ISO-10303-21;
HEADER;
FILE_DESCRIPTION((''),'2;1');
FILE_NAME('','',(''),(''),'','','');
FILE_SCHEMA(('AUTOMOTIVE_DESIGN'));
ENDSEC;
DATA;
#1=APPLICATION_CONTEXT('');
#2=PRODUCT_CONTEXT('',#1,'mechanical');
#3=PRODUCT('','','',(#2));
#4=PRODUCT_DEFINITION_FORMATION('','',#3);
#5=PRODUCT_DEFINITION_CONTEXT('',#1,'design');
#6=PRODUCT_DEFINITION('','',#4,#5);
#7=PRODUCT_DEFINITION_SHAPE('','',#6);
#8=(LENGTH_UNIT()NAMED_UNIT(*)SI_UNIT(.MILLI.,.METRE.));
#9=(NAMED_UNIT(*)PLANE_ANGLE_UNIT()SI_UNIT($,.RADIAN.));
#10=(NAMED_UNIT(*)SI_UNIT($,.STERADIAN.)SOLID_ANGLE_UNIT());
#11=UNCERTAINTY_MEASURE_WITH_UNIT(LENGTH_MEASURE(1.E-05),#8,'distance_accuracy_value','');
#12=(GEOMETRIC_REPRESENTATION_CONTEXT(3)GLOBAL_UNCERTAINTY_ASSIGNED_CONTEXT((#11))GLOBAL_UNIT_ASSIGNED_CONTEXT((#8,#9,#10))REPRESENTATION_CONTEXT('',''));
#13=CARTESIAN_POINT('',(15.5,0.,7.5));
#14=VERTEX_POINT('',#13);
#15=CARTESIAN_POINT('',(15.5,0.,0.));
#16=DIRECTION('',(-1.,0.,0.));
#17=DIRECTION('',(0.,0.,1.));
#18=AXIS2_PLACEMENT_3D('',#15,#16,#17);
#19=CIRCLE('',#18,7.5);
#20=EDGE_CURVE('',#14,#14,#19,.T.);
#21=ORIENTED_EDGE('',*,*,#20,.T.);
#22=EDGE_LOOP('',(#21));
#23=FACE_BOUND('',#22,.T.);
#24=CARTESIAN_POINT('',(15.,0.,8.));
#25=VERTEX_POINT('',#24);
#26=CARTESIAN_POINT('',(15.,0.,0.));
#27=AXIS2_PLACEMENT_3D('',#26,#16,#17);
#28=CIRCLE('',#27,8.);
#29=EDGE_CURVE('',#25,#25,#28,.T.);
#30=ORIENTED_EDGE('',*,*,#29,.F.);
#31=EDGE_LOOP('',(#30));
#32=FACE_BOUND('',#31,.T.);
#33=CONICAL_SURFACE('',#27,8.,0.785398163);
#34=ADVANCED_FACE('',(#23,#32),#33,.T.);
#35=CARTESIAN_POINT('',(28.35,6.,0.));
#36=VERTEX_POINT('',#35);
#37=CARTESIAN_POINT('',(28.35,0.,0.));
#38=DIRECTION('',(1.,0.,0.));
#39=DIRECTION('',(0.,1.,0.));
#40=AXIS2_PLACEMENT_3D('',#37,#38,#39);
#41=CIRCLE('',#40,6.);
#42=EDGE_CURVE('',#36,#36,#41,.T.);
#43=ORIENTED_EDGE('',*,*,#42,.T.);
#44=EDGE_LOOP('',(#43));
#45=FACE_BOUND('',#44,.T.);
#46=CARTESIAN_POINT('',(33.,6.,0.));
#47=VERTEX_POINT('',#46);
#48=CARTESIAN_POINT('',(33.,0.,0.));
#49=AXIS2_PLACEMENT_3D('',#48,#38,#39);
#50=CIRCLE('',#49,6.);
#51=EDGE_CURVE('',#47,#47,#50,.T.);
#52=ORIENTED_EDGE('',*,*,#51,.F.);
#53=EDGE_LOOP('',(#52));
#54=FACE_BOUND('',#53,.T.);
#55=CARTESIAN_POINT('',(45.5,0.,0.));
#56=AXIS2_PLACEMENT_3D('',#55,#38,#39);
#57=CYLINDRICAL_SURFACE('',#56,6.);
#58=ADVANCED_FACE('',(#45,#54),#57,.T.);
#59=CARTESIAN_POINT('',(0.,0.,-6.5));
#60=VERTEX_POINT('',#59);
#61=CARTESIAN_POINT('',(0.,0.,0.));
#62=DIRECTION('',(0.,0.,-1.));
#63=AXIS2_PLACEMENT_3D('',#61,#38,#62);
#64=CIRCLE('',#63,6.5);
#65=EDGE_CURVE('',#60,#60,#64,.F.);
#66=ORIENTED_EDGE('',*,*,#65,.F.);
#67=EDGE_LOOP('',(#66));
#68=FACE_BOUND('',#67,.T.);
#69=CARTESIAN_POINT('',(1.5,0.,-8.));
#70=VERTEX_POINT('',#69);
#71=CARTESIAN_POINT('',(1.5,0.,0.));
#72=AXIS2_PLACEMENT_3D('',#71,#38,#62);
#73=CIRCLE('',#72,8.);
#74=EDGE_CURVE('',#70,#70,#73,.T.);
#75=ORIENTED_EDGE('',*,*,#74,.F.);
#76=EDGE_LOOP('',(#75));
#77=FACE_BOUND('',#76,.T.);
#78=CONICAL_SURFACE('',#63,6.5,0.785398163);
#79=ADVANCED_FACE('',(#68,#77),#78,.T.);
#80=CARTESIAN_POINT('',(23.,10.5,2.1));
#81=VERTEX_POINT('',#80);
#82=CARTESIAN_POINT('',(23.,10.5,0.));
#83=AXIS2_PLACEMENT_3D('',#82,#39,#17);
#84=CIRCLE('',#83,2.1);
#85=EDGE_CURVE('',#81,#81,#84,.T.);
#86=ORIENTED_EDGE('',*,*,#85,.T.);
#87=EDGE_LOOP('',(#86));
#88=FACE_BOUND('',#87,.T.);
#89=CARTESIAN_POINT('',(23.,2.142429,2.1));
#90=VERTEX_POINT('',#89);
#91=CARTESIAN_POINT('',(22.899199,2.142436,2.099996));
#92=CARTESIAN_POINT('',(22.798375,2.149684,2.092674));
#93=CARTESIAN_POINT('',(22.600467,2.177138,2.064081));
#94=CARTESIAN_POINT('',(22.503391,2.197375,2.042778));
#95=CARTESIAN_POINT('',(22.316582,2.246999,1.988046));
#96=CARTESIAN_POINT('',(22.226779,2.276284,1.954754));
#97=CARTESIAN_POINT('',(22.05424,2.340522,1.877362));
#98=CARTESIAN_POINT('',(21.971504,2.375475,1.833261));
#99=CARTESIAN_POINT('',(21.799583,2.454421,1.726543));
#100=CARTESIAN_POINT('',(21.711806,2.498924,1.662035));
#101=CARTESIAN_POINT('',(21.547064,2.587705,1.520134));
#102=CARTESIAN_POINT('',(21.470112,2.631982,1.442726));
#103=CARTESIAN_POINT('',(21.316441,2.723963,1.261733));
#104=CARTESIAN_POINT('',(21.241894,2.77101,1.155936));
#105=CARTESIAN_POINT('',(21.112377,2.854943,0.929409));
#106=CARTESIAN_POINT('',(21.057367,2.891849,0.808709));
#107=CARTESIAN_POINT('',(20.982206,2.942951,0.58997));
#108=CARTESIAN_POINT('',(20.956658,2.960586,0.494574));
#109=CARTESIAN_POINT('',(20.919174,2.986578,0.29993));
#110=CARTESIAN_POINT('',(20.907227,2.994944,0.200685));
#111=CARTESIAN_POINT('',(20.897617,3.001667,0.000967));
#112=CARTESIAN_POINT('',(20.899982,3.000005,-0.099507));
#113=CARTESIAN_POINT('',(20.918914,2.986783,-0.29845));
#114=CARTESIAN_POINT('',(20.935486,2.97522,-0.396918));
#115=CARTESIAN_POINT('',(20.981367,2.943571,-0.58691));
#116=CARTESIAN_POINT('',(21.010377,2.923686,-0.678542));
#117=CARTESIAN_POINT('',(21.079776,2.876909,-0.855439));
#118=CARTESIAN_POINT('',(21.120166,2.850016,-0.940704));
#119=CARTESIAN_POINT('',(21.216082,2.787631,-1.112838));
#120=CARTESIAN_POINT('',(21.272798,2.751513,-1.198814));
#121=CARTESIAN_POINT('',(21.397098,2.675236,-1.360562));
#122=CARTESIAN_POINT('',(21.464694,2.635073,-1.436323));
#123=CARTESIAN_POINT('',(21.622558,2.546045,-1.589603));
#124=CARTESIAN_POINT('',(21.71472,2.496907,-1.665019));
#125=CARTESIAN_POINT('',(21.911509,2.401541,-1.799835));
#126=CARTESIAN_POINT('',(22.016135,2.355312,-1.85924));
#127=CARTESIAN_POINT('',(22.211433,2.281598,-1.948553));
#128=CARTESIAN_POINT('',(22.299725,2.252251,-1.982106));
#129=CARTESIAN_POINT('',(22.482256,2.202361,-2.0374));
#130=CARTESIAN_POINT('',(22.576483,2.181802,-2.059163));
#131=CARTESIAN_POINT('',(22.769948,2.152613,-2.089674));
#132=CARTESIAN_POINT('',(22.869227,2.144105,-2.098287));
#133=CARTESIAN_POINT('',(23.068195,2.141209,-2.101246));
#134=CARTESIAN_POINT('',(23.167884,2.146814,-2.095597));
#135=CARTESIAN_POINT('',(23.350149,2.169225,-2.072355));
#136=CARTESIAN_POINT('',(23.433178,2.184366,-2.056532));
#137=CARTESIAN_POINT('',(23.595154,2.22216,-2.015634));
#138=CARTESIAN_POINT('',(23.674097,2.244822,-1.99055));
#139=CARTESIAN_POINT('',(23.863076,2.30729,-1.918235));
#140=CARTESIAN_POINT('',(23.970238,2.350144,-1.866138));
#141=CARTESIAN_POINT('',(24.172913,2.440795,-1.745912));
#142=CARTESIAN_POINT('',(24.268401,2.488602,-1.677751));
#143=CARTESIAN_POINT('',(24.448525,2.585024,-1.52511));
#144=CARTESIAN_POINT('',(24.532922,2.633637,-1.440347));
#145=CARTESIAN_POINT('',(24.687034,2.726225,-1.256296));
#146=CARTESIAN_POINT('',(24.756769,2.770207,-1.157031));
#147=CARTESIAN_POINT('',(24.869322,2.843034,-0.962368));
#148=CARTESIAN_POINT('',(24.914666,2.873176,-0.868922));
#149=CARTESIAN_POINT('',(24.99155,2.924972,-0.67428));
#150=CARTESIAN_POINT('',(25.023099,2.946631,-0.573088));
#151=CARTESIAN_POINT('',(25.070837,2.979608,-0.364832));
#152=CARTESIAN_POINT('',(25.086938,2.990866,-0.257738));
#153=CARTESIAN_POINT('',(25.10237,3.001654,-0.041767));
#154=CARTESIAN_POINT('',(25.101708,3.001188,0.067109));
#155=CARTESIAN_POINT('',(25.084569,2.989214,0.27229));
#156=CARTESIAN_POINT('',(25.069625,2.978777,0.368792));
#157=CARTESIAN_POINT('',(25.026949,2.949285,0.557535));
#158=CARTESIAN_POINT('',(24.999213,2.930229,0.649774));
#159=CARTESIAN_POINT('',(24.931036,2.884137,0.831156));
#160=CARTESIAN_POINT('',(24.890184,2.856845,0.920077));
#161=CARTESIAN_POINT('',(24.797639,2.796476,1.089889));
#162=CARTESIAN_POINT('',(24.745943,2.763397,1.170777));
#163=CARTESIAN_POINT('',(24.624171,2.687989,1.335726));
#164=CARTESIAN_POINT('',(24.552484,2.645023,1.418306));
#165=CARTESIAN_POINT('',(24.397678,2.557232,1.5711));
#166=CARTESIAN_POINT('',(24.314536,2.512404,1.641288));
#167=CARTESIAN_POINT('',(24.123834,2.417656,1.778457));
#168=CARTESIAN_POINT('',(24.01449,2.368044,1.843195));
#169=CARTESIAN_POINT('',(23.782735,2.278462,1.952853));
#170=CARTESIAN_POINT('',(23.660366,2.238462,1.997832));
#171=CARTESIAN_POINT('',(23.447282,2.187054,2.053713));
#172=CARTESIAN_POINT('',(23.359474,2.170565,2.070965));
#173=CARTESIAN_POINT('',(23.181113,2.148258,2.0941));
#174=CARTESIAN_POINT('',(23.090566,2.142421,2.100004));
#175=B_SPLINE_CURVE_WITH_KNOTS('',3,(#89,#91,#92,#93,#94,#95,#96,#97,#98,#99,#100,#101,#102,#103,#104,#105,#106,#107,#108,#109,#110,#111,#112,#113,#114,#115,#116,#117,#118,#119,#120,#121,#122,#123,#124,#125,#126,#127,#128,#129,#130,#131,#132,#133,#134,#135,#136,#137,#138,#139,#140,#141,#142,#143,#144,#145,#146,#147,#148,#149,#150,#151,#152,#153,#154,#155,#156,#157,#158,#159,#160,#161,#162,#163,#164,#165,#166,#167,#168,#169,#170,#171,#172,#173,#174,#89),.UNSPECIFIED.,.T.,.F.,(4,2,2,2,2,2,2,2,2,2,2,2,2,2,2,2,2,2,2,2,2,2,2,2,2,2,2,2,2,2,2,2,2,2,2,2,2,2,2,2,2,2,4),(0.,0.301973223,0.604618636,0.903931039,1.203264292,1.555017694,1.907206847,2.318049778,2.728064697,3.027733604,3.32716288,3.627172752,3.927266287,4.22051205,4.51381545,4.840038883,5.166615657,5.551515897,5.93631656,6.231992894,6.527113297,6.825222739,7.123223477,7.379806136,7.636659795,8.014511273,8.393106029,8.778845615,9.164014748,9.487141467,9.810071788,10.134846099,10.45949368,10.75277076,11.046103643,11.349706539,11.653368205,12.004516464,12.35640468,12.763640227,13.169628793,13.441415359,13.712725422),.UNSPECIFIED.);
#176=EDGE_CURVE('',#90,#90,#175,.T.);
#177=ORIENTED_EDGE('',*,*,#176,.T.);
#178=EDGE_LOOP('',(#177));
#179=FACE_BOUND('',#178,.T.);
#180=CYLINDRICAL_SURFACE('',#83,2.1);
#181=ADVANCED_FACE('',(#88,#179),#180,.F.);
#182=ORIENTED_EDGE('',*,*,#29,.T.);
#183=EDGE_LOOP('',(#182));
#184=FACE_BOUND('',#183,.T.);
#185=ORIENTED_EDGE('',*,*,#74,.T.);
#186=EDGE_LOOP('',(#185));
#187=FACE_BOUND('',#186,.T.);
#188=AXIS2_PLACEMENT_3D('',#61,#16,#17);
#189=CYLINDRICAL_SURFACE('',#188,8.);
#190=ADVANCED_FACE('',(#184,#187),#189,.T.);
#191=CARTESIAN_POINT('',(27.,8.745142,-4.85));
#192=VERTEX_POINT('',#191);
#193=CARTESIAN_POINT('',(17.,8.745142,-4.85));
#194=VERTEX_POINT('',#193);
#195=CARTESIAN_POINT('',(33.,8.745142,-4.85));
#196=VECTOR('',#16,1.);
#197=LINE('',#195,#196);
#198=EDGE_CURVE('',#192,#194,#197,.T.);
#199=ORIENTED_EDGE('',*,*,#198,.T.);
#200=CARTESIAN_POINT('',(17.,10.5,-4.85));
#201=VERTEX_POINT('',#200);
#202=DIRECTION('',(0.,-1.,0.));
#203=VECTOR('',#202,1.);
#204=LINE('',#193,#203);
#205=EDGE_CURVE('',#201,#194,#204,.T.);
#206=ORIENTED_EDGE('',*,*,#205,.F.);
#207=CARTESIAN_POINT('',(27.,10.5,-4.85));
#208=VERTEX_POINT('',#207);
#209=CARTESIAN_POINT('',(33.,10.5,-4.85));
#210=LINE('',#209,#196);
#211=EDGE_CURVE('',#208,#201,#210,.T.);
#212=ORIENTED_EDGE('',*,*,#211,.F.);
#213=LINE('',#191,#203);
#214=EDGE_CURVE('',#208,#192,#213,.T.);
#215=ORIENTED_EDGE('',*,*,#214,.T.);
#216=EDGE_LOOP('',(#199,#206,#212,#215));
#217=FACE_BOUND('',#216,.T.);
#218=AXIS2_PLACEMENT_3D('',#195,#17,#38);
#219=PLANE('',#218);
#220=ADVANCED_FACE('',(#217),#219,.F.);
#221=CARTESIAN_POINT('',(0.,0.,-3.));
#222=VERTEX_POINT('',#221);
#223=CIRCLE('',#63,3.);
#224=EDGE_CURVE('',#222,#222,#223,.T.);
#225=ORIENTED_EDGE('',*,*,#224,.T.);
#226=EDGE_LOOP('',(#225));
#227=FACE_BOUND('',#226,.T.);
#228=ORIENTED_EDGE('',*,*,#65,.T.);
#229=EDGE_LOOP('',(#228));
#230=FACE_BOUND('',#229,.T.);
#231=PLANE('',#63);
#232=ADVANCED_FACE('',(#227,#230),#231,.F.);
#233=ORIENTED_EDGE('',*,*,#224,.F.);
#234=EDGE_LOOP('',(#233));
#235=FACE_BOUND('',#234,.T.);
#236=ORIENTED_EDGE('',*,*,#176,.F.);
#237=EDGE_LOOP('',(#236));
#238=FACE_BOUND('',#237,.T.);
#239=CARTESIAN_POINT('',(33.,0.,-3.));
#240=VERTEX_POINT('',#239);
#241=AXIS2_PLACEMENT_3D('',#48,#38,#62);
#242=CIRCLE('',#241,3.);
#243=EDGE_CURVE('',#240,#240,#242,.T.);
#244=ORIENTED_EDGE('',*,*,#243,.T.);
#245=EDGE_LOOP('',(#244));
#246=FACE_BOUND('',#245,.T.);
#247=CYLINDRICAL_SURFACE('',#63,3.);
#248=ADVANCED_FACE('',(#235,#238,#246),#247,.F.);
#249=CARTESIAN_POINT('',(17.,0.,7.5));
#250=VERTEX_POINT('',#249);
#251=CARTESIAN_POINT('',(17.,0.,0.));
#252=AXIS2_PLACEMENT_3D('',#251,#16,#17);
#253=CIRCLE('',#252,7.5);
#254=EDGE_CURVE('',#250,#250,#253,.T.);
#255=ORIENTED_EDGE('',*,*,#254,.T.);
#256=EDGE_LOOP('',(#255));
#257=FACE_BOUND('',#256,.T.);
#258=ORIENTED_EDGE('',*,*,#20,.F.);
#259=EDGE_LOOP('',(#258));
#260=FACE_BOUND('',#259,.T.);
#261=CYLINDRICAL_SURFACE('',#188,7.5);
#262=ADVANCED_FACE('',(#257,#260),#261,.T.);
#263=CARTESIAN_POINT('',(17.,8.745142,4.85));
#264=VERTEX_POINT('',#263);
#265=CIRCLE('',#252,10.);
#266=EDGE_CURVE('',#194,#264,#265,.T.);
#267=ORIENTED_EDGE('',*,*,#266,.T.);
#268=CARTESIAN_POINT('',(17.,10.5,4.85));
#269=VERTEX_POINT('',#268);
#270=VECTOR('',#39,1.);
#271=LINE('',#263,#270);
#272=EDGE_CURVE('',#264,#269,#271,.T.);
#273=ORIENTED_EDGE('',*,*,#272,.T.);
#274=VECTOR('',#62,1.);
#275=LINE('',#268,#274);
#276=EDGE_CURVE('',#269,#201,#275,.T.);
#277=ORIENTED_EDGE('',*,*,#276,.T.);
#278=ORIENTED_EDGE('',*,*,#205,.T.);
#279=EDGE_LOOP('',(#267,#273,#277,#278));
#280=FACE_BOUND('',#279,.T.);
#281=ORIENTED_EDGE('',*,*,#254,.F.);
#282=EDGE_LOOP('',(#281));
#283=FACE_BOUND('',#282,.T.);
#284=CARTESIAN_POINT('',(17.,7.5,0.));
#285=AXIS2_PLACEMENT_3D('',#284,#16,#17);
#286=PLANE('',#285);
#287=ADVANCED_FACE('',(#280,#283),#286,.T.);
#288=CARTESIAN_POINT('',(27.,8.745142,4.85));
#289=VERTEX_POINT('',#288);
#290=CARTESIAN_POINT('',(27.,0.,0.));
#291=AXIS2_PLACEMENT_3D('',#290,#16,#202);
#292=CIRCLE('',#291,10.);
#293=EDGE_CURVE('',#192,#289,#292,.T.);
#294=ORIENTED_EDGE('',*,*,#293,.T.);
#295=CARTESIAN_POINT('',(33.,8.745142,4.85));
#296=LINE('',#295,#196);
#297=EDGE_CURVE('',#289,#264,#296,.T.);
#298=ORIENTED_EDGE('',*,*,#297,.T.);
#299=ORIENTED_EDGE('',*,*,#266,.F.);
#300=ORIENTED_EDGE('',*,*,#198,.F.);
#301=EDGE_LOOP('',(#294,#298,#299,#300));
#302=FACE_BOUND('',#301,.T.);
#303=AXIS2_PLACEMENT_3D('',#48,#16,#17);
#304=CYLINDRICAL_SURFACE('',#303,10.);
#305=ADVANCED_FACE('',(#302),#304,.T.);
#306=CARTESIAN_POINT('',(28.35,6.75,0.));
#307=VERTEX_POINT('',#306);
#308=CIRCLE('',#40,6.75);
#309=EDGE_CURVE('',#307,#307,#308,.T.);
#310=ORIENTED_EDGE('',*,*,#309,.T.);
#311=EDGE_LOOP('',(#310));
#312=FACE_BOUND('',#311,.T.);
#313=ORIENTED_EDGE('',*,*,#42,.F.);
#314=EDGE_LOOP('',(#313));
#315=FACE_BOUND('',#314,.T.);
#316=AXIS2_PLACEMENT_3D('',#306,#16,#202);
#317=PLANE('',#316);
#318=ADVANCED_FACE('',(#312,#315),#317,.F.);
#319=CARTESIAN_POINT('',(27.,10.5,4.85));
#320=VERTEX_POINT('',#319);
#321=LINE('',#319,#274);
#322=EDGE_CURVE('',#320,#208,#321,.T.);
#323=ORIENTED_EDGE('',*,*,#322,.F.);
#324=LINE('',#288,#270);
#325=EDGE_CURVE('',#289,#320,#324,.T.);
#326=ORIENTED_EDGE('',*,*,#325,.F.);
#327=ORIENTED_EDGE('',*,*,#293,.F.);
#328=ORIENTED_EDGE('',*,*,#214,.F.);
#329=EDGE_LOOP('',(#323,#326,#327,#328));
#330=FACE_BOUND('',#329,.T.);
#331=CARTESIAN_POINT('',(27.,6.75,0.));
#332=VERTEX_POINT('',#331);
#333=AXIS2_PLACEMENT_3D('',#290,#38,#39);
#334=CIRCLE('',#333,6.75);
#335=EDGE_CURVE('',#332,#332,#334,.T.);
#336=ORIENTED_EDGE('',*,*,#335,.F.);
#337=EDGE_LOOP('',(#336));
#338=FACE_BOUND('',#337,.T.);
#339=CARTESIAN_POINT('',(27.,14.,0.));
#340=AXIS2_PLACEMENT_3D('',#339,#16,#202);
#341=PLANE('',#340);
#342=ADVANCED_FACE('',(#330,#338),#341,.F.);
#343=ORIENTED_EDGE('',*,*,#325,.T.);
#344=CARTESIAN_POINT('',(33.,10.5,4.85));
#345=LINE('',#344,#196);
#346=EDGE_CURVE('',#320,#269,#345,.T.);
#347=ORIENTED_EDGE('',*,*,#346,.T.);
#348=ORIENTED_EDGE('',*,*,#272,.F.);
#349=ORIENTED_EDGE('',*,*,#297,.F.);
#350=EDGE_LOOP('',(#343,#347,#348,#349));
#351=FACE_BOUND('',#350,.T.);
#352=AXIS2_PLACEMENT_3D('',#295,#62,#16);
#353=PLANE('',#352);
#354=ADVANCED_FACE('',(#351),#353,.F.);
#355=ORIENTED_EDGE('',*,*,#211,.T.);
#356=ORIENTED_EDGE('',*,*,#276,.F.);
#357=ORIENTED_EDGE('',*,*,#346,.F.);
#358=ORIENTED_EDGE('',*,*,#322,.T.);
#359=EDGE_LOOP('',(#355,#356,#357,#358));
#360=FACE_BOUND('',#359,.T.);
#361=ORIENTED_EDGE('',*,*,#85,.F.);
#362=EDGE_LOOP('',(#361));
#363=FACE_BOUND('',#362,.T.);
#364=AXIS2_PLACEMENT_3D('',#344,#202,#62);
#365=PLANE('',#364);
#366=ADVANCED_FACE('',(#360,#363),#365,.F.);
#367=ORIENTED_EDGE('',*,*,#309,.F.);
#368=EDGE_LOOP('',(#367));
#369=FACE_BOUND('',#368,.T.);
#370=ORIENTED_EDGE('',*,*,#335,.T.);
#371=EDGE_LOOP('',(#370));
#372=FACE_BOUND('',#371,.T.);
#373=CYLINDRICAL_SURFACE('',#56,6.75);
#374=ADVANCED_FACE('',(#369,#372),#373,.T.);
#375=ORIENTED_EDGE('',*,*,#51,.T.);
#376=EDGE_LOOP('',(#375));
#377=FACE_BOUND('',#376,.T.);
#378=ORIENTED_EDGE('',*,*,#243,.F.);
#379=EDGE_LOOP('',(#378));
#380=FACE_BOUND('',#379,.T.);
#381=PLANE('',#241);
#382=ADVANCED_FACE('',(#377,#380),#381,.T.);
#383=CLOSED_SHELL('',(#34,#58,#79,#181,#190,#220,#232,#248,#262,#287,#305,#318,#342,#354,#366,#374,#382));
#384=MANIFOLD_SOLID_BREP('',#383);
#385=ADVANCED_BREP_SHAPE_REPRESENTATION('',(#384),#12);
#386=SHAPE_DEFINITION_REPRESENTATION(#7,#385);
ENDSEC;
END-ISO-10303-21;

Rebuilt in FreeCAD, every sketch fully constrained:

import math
import FreeCAD as App
import Part
import Sketcher

V = App.Vector
Q = App.Units.Quantity


def edges_at(feature, points):
    """Names of the edges that pass closest to the given points."""
    edges = feature.Shape.Edges
    near = lambda p: min(range(len(edges)), key=lambda i: edges[i].distToShape(Part.Vertex(*p))[0])
    return sorted({f"Edge{near(p) + 1}" for p in points})

doc = App.newDocument("Part")
body = doc.addObject("PartDesign::Body", "Body")

sketch1 = body.newObject("Sketcher::SketchObject", "Sketch")
sketch1.AttachmentSupport = (doc.getObject("YZ_Plane"), [""])
sketch1.MapMode = "FlatFace"
sketch1.addGeometry([
    Part.LineSegment(V(10.5, 4.8, 0), V(8.7, 4.8, 0)),
    Part.ArcOfCircle(Part.Circle(V(0, 0, 0), V(0, 0, 1), 10), math.radians(29), math.radians(331)),
    Part.LineSegment(V(8.7, -4.8, 0), V(10.5, -4.8, 0)),
    Part.LineSegment(V(10.5, -4.8, 0), V(10.5, 4.8, 0)),
], False)
sketch1.addConstraint([
    Sketcher.Constraint("Coincident", 0, 2, 1, 1),
    Sketcher.Constraint("Coincident", 1, 2, 2, 1),
    Sketcher.Constraint("Coincident", 2, 2, 3, 1),
    Sketcher.Constraint("Coincident", 3, 2, 0, 1),
    Sketcher.Constraint("Horizontal", 0),
    Sketcher.Constraint("Horizontal", 2),
    Sketcher.Constraint("Vertical", 3),
    Sketcher.Constraint("Coincident", 1, 3, -1, 1),
    Sketcher.Constraint("Vertical", 0, 2, 1, 2),
    Sketcher.Constraint("Radius", 1, Q("10 mm")),
    Sketcher.Constraint("DistanceY", 3, 1, 3, 2, Q("9.7 mm")),
    Sketcher.Constraint("DistanceX", -1, 1, 2, 2, Q("10.5 mm")),
])
pad1 = body.newObject("PartDesign::Pad", "Pad")
pad1.Profile = sketch1
pad1.Length = 33

sketch2 = body.newObject("Sketcher::SketchObject", "Sketch001")
sketch2.AttachmentSupport = (doc.getObject("XY_Plane"), [""])
sketch2.MapMode = "FlatFace"
sketch2.addGeometry([
    Part.LineSegment(V(27, 14, 0), V(27, 6.8, 0)),
    Part.LineSegment(V(27, 6.8, 0), V(28.4, 6.8, 0)),
    Part.LineSegment(V(28.4, 6.8, 0), V(28.4, 6, 0)),
    Part.LineSegment(V(28.4, 6, 0), V(33, 6, 0)),
    Part.LineSegment(V(33, 6, 0), V(33, 14, 0)),
    Part.LineSegment(V(33, 14, 0), V(27, 14, 0)),
], False)
sketch2.addConstraint([
    Sketcher.Constraint("Coincident", 0, 2, 1, 1),
    Sketcher.Constraint("Coincident", 1, 2, 2, 1),
    Sketcher.Constraint("Coincident", 2, 2, 3, 1),
    Sketcher.Constraint("Coincident", 3, 2, 4, 1),
    Sketcher.Constraint("Coincident", 4, 2, 5, 1),
    Sketcher.Constraint("Coincident", 5, 2, 0, 1),
    Sketcher.Constraint("Vertical", 0),
    Sketcher.Constraint("Horizontal", 1),
    Sketcher.Constraint("Vertical", 2),
    Sketcher.Constraint("Horizontal", 3),
    Sketcher.Constraint("Vertical", 4),
    Sketcher.Constraint("Horizontal", 5),
    Sketcher.Constraint("DistanceX", 5, 2, 5, 1, Q("6 mm")),
    Sketcher.Constraint("DistanceY", 4, 1, 4, 2, Q("8 mm")),
    Sketcher.Constraint("DistanceX", -1, 1, 0, 2, Q("27 mm")),
    Sketcher.Constraint("DistanceY", -1, 1, 2, 2, Q("6 mm")),
    Sketcher.Constraint("DistanceX", 1, 1, 1, 2, Q("1.35 mm")),
    Sketcher.Constraint("DistanceY", 0, 2, 0, 1, Q("7.25 mm")),
])
groove = body.newObject("PartDesign::Groove", "Groove")
groove.Profile = sketch2
groove.ReferenceAxis = (sketch2, ["H_Axis"])
groove.Angle = 360

sketch3 = body.newObject("Sketcher::SketchObject", "Sketch002")
sketch3.AttachmentSupport = (doc.getObject("XY_Plane"), [""])
sketch3.MapMode = "FlatFace"
sketch3.addGeometry([
    Part.LineSegment(V(0, 8, 0), V(15, 8, 0)),
    Part.LineSegment(V(15, 8, 0), V(15.5, 7.5, 0)),
    Part.LineSegment(V(15.5, 7.5, 0), V(17, 7.5, 0)),
    Part.LineSegment(V(17, 7.5, 0), V(17, 16, 0)),
    Part.LineSegment(V(17, 16, 0), V(0, 16, 0)),
    Part.LineSegment(V(0, 16, 0), V(0, 8, 0)),
], False)
sketch3.addConstraint([
    Sketcher.Constraint("Coincident", 0, 2, 1, 1),
    Sketcher.Constraint("Coincident", 1, 2, 2, 1),
    Sketcher.Constraint("Coincident", 2, 2, 3, 1),
    Sketcher.Constraint("Coincident", 3, 2, 4, 1),
    Sketcher.Constraint("Coincident", 4, 2, 5, 1),
    Sketcher.Constraint("Coincident", 5, 2, 0, 1),
    Sketcher.Constraint("Horizontal", 0),
    Sketcher.Constraint("Horizontal", 2),
    Sketcher.Constraint("Vertical", 3),
    Sketcher.Constraint("Horizontal", 4),
    Sketcher.Constraint("Vertical", 5),
    Sketcher.Constraint("PointOnObject", 4, 2, -2),
    Sketcher.Constraint("DistanceX", 0, 1, 0, 2, Q("15 mm")),
    Sketcher.Constraint("DistanceX", 4, 2, 4, 1, Q("17 mm")),
    Sketcher.Constraint("DistanceY", 5, 2, 5, 1, Q("8 mm")),
    Sketcher.Constraint("Angle", 1, Q("-45 deg")),
    Sketcher.Constraint("DistanceX", 2, 1, 2, 2, Q("1.5 mm")),
    Sketcher.Constraint("DistanceY", -1, 1, 0, 2, Q("8 mm")),
])
groove2 = body.newObject("PartDesign::Groove", "Groove001")
groove2.Profile = sketch3
groove2.ReferenceAxis = (sketch3, ["H_Axis"])
groove2.Angle = 360
doc.recompute()

chamfer = body.newObject("PartDesign::Chamfer", "Chamfer")
chamfer.Base = (groove2, edges_at(groove2, [(0, -8, 0)]))
chamfer.Size = 1.5

sketch4 = body.newObject("Sketcher::SketchObject", "Sketch003")
sketch4.AttachmentSupport = (doc.getObject("XZ_Plane"), [""])
sketch4.MapMode = "FlatFace"
sketch4.AttachmentOffset = App.Placement(V(0, 0, -10.5), App.Rotation())
sketch4.addGeometry(Part.Circle(V(23, 0, 0), V(0, 0, 1), 2.1), False)
sketch4.addConstraint([
    Sketcher.Constraint("PointOnObject", 0, 3, -1),
    Sketcher.Constraint("Diameter", 0, Q("4.2 mm")),
    Sketcher.Constraint("DistanceX", -1, 1, 0, 3, Q("23 mm")),
])
doc.recompute()
hole = body.newObject("PartDesign::Hole", "Hole")
hole.Profile = sketch4
hole.ThreadType = "None"
hole.Diameter = 4.2
hole.DepthType = "Dimension"
hole.Depth = 11
hole.DrillPoint = "Angled"
hole.DrillPointAngle = 118
hole.Reversed = True

sketch5 = body.newObject("Sketcher::SketchObject", "Sketch004")
sketch5.AttachmentSupport = (doc.getObject("YZ_Plane"), [""])
sketch5.MapMode = "FlatFace"
sketch5.AttachmentOffset = App.Placement(V(0, 0, 33), App.Rotation())
sketch5.addGeometry(Part.Circle(V(0, 0, 0), V(0, 0, 1), 3), False)
sketch5.addConstraint([
    Sketcher.Constraint("Coincident", 0, 3, -1, 1),
    Sketcher.Constraint("Diameter", 0, Q("6 mm")),
])
pocket1 = body.newObject("PartDesign::Pocket", "Pocket")
pocket1.Profile = sketch5
pocket1.Type = "ThroughAll"

doc.recompute()
